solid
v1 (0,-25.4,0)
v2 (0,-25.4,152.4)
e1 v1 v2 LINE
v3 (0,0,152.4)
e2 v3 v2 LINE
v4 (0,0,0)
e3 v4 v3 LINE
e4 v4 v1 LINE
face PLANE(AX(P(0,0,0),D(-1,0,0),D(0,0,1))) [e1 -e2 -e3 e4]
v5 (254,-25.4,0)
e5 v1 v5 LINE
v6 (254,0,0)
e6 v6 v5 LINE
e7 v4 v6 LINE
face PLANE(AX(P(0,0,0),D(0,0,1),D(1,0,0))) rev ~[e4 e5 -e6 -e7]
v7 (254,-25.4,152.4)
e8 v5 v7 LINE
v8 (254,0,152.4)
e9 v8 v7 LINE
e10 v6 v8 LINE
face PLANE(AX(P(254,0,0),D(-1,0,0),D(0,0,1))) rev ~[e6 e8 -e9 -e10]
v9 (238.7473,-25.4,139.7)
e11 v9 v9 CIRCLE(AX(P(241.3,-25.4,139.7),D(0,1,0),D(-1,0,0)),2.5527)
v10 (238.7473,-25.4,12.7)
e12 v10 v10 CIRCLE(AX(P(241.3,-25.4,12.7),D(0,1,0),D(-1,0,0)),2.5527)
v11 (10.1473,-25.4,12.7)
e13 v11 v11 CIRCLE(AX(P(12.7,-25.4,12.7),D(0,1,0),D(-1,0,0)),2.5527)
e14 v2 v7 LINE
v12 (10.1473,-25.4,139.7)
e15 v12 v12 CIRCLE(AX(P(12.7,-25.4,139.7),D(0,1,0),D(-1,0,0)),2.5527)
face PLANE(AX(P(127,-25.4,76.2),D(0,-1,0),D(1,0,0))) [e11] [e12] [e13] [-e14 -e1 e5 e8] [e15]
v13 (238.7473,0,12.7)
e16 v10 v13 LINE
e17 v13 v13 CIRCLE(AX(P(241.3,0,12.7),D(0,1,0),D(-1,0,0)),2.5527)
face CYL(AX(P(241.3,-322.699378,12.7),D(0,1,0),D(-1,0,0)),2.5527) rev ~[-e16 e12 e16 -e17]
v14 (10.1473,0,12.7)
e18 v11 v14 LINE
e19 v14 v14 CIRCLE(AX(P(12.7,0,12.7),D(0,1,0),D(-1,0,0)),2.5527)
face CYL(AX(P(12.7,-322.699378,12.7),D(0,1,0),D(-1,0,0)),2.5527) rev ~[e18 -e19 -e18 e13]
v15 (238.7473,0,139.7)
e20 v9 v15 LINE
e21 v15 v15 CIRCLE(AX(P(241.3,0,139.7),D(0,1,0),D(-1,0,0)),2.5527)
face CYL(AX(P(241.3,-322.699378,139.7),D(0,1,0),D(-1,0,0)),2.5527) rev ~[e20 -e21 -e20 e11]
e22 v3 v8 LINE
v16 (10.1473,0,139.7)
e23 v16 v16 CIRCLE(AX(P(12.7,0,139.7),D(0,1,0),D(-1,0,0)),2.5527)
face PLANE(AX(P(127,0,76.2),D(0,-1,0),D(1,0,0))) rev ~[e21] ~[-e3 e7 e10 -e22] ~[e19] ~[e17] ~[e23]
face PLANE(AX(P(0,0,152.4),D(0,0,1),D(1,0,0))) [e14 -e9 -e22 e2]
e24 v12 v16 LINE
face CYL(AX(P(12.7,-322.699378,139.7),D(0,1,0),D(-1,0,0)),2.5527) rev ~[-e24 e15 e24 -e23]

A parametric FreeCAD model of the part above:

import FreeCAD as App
import Part
import Sketcher

V = App.Vector
Q = App.Units.Quantity


def add_polygon(sketch, points):
    """Adds a closed chain of lines whose ends are joined by coincident constraints."""
    first, n = sketch.GeometryCount, len(points)
    for a, b in zip(points, points[1:] + points[:1]):
        sketch.addGeometry(Part.LineSegment(App.Vector(*a, 0), App.Vector(*b, 0)), False)
    for i in range(n):
        sketch.addConstraint(Sketcher.Constraint("Coincident", first + i, 2, first + (i + 1) % n, 1))

doc = App.newDocument("Part")
params = doc.addObject("Spreadsheet::Sheet", "Params")
for row, (alias, value) in enumerate([
    ("sketch1_width", "10 in"),
    ("sketch1_height", "6 in"),
    ("pad1_length", "1 in"),
    ("sketch2_diameter", "0.201 in"),
    ("hole_diameter", "0.201 in"),
], start=1):
    params.set(f"A{row}", alias)
    params.set(f"B{row}", "=" + value)
    params.setAlias(f"B{row}", alias)

body = doc.addObject("PartDesign::Body", "Body")

# Sketch on XZ plane
sketch1 = body.newObject("Sketcher::SketchObject", "Sketch")
sketch1.AttachmentSupport = (doc.getObject("XZ_Plane"), [""])
sketch1.MapMode = "FlatFace"
add_polygon(sketch1, [(0, 152), (0, 0), (254, 0), (254, 152)])  # lines 0-3
sketch1.addConstraint([
    Sketcher.Constraint("Vertical", 0),
    Sketcher.Constraint("Horizontal", 1),
    Sketcher.Constraint("Vertical", 2),
    Sketcher.Constraint("Horizontal", 3),
    Sketcher.Constraint("Coincident", 0, 2, -1, 1),
    Sketcher.Constraint("DistanceX", 1, 1, 1, 2, Q("10 in")),
    Sketcher.Constraint("DistanceY", 0, 2, 0, 1, Q("6 in")),
])
sketch1.setExpression("Constraints[9]", "Params.sketch1_width")
sketch1.setExpression("Constraints[10]", "Params.sketch1_height")
pad1 = body.newObject("PartDesign::Pad", "Pad")
pad1.Profile = sketch1
pad1.setExpression("Length", "Params.pad1_length")

# Sketch on XZ plane
sketch2 = body.newObject("Sketcher::SketchObject", "Sketch001")
sketch2.AttachmentSupport = (doc.getObject("XZ_Plane"), [""])
sketch2.MapMode = "FlatFace"
sketch2.AttachmentOffset = App.Placement(V(0, 0, 1 * 25.4), App.Rotation())
sketch2.addGeometry([
    Part.Circle(V(12.7, 139.7, 0), V(0, 0, 1), 2.6),
    Part.Circle(V(241.3, 139.7, 0), V(0, 0, 1), 2.6),
    Part.Circle(V(241.3, 12.7, 0), V(0, 0, 1), 2.6),
    Part.Circle(V(12.7, 12.7, 0), V(0, 0, 1), 2.6),
], False)
sketch2.addConstraint([
    Sketcher.Constraint("Equal", 0, 1),
    Sketcher.Constraint("Equal", 1, 2),
    Sketcher.Constraint("Equal", 2, 3),
    Sketcher.Constraint("Horizontal", 0, 3, 1, 3),
    Sketcher.Constraint("Horizontal", 2, 3, 3, 3),
    Sketcher.Constraint("Vertical", 1, 3, 2, 3),
    Sketcher.Constraint("Vertical", 0, 3, 3, 3),
    Sketcher.Constraint("Diameter", 0, Q("0.201 in")),
    Sketcher.Constraint("DistanceX", 0, 3, 1, 3, Q("9 in")),
    Sketcher.Constraint("DistanceY", 2, 3, 1, 3, Q("5 in")),
    Sketcher.Constraint("DistanceX", -1, 1, 0, 3, Q("0.5 in")),
    Sketcher.Constraint("DistanceY", -1, 1, 0, 3, Q("5.5 in")),
])
sketch2.setExpression("Constraints[7]", "Params.sketch2_diameter")
doc.recompute()
hole = body.newObject("PartDesign::Hole", "Hole")
hole.Profile = sketch2
hole.ThreadType = "None"
hole.setExpression("Diameter", "Params.hole_diameter")
hole.DepthType = "ThroughAll"

doc.recompute()
